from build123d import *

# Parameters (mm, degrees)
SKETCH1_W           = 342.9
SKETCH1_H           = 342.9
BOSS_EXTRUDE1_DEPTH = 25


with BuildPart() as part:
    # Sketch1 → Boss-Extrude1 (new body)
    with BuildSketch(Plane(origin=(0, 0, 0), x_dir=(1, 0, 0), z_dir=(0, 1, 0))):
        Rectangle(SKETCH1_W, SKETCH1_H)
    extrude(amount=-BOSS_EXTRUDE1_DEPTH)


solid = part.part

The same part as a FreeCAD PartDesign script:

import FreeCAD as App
import Part
import Sketcher
from FreeCAD import Vector


def add_polygon(sketch, points):
    """Adds a closed chain of lines whose ends are joined by coincident constraints."""
    first, n = sketch.GeometryCount, len(points)
    for a, b in zip(points, points[1:] + points[:1]):
        sketch.addGeometry(Part.LineSegment(App.Vector(*a, 0), App.Vector(*b, 0)), False)
    for i in range(n):
        sketch.addConstraint(Sketcher.Constraint("Coincident", first + i, 2, first + (i + 1) % n, 1))

doc = App.newDocument("Part")
body = doc.addObject("PartDesign::Body", "Body")

# Sketch on XZ plane
sketch1 = doc.addObject("Sketcher::SketchObject", "Sketch")
body.addObject(sketch1)
sketch1.AttachmentSupport = (doc.XZ_Plane, [""])
sketch1.MapMode = "FlatFace"
add_polygon(sketch1, [(-171, -171), (-171, 171), (171, 171), (171, -171)])  # lines 0-3
sketch1.addConstraint([
    Sketcher.Constraint("Vertical", 0),
    Sketcher.Constraint("Horizontal", 1),
    Sketcher.Constraint("Vertical", 2),
    Sketcher.Constraint("Horizontal", 3),
    Sketcher.Constraint("Symmetric", 0, 2, 2, 2, -1, 1),
    Sketcher.Constraint("Equal", 3, 0),
    Sketcher.Constraint("DistanceX", 1, 1, 1, 2, 342.9),
])
pad1 = doc.addObject("PartDesign::Pad", "Pad")
body.addObject(pad1)
pad1.Profile = sketch1
pad1.Length = 25

doc.recompute()
